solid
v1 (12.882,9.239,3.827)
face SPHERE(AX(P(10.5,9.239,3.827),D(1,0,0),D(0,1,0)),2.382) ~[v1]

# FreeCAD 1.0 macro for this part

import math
import FreeCAD as App
import Part
import Sketcher

V = App.Vector

doc = App.newDocument("Part")
body = doc.addObject("PartDesign::Body", "Body")

sketch1 = body.newObject("Sketcher::SketchObject", "Sketch")
sketch1.AttachmentSupport = (doc.getObject("XY_Plane"), [""])
sketch1.MapMode = "FlatFace"
sketch1.AttachmentOffset = App.Placement(V(0, 0, 3.827), App.Rotation())
sketch1.addGeometry([
    Part.LineSegment(V(8.118, 9.239, 0), V(12.882, 9.239, 0)),
    Part.ArcOfCircle(Part.Circle(V(10.5, 9.239, 0), V(0, 0, 1), 2.382), math.radians(0), math.radians(180)),
], False)
sketch1.addGeometry(Part.LineSegment(V(12.882, 9.239, 0), V(8.118, 9.239, 0)), True)
sketch1.addConstraint([
    Sketcher.Constraint("Coincident", 0, 1, 1, 2),
    Sketcher.Constraint("Coincident", 1, 1, 0, 2),
    Sketcher.Constraint("Horizontal", 0),
    Sketcher.Constraint("Horizontal", 2),
    Sketcher.Constraint("Coincident", 2, 1, 1, 1),
    Sketcher.Constraint("Horizontal", 1, 3, 0, 1),
    Sketcher.Constraint("Equal", 0, 2),
    Sketcher.Constraint("Radius", 1, 2.382),
    Sketcher.Constraint("DistanceX", -1, 1, 1, 3, 10.5),
    Sketcher.Constraint("DistanceY", -1, 1, 1, 3, 9.239),
])
revolution = body.newObject("PartDesign::Revolution", "Revolution")
revolution.Profile = sketch1
revolution.ReferenceAxis = (sketch1, ["Axis0"])
revolution.Angle = 360

doc.recompute()
